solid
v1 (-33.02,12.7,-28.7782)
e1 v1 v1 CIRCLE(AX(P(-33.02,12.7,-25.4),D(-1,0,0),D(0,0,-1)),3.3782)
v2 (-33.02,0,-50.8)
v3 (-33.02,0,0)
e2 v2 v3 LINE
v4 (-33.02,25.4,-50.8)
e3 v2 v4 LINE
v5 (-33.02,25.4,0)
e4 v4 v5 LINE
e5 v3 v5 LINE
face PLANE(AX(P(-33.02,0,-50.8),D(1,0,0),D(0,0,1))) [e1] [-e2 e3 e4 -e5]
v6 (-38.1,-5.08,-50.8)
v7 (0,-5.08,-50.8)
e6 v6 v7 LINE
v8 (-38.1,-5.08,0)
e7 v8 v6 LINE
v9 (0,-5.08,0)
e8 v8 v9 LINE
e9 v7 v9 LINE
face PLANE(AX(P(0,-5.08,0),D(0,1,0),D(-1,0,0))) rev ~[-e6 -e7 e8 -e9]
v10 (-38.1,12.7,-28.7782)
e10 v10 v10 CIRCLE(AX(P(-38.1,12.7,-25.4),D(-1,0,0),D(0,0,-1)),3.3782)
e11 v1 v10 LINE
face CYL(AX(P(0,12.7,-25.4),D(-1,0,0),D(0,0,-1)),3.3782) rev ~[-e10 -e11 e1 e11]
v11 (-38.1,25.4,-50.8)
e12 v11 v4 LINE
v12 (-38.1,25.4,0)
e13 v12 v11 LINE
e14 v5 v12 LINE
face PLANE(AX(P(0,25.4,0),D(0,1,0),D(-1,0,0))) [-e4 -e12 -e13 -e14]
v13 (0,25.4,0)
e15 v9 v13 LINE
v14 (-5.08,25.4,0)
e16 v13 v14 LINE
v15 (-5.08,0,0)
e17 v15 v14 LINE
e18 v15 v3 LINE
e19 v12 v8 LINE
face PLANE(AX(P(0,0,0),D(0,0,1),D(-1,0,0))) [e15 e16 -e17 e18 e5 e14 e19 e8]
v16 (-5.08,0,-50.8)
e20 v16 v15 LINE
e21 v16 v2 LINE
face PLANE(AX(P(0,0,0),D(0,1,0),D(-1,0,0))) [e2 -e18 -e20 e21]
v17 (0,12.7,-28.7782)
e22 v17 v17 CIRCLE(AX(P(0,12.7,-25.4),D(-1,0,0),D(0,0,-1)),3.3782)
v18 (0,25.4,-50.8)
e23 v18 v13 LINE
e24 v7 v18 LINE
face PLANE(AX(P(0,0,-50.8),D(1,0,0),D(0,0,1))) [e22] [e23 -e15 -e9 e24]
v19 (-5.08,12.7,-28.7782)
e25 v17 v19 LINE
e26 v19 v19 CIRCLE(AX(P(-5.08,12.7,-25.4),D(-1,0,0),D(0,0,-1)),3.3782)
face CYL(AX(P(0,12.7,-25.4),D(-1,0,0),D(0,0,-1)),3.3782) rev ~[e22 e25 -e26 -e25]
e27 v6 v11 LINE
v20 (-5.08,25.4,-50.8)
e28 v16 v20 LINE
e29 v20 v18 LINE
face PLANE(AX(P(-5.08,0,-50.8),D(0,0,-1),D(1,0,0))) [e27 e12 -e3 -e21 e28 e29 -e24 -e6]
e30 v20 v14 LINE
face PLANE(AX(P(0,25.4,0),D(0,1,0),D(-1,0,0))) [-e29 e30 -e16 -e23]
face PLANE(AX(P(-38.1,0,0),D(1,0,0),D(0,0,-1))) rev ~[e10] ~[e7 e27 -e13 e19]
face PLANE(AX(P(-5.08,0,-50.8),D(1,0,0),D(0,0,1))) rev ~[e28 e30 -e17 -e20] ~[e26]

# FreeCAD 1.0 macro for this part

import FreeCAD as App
import Part
import Sketcher
from FreeCAD import Vector
Q = App.Units.Quantity


def add_polygon(sketch, points):
    """Adds a closed chain of lines whose ends are joined by coincident constraints."""
    first, n = sketch.GeometryCount, len(points)
    for a, b in zip(points, points[1:] + points[:1]):
        sketch.addGeometry(Part.LineSegment(App.Vector(*a, 0), App.Vector(*b, 0)), False)
    for i in range(n):
        sketch.addConstraint(Sketcher.Constraint("Coincident", first + i, 2, first + (i + 1) % n, 1))

doc = App.newDocument("Part")
body = doc.addObject("PartDesign::Body", "Body")
body.AllowCompound = True

# Sketch on XZ plane
sketch1 = doc.addObject("Sketcher::SketchObject", "Sketch")
body.addObject(sketch1)
sketch1.AttachmentSupport = (doc.XZ_Plane, [""])
sketch1.MapMode = "FlatFace"
add_polygon(sketch1, [(-5.08, 0), (0, 0), (0, -50.8), (-5.08, -50.8)])  # lines 0-3
add_polygon(sketch1, [(-38.1, 0), (-33.02, 0), (-33.02, -50.8), (-38.1, -50.8)])  # lines 4-7
sketch1.addConstraint([
    Sketcher.Constraint("Horizontal", 0),
    Sketcher.Constraint("Vertical", 1),
    Sketcher.Constraint("Horizontal", 2),
    Sketcher.Constraint("Vertical", 3),
    Sketcher.Constraint("Horizontal", 4),
    Sketcher.Constraint("Vertical", 5),
    Sketcher.Constraint("Horizontal", 6),
    Sketcher.Constraint("Vertical", 7),
    Sketcher.Constraint("Coincident", 0, 2, -1, 1),
    Sketcher.Constraint("PointOnObject", 4, 2, -1),
    Sketcher.Constraint("Horizontal", 2, 2, 5, 2),
    Sketcher.Constraint("Equal", 2, 4),
    Sketcher.Constraint("DistanceY", 1, 2, 1, 1, Q("2 in")),
    Sketcher.Constraint("DistanceX", 0, 1, 0, 2, Q("0.2 in")),
    Sketcher.Constraint("DistanceX", 6, 2, -1, 1, Q("1.5 in")),
])
pad1 = doc.addObject("PartDesign::Pad", "Pad")
body.addObject(pad1)
pad1.Profile = sketch1
pad1.Length = Q("1 in")
pad1.Reversed = True

# Sketch on XZ plane
sketch2 = doc.addObject("Sketcher::SketchObject", "Sketch001")
body.addObject(sketch2)
sketch2.AttachmentSupport = (doc.XZ_Plane, [""])
sketch2.MapMode = "FlatFace"
add_polygon(sketch2, [(0, 0), (0, -50.8), (-38.1, -50.8), (-38.1, 0)])  # lines 0-3
sketch2.addConstraint([
    Sketcher.Constraint("Vertical", 0),
    Sketcher.Constraint("Horizontal", 1),
    Sketcher.Constraint("Vertical", 2),
    Sketcher.Constraint("Horizontal", 3),
    Sketcher.Constraint("Coincident", 3, 2, -1, 1),
    Sketcher.Constraint("DistanceY", 0, 2, 0, 1, Q("2 in")),
    Sketcher.Constraint("DistanceX", 1, 2, 1, 1, Q("1.5 in")),
])
pad2 = doc.addObject("PartDesign::Pad", "Pad001")
body.addObject(pad2)
pad2.Profile = sketch2
pad2.Length = Q("0.2 in")

# Sketch on YZ plane
sketch3 = doc.addObject("Sketcher::SketchObject", "Sketch002")
body.addObject(sketch3)
sketch3.AttachmentSupport = (doc.YZ_Plane, [""])
sketch3.MapMode = "FlatFace"
sketch3.addGeometry(Part.Circle(Vector(12.7, -25.4, 0), Vector(0, 0, 1), 3.3782), False)
sketch3.addConstraint([
    Sketcher.Constraint("Diameter", 0, Q("0.266 in")),
    Sketcher.Constraint("DistanceY", 0, 3, -1, 1, Q("1 in")),
    Sketcher.Constraint("DistanceX", -1, 1, 0, 3, Q("0.5 in")),
])
doc.recompute()
hole = doc.addObject("PartDesign::Hole", "Hole")
body.addObject(hole)
hole.Profile = sketch3
hole.ThreadType = "None"
hole.Diameter = Q("0.266 in")
hole.DepthType = "ThroughAll"

doc.recompute()
